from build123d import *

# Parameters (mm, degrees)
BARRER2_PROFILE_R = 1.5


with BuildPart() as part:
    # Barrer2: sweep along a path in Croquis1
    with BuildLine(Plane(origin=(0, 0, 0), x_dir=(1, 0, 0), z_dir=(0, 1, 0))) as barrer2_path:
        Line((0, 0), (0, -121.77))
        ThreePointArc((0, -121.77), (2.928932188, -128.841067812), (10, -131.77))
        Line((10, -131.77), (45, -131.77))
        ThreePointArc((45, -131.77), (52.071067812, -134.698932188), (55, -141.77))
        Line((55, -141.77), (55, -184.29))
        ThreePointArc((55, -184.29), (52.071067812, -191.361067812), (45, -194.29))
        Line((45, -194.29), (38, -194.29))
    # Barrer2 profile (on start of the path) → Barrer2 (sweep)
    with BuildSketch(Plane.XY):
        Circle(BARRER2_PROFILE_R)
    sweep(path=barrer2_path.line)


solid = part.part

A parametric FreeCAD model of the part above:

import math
import FreeCAD as App
import Part
import Sketcher
from FreeCAD import Vector
Q = App.Units.Quantity

doc = App.newDocument("Part")
body = doc.addObject("PartDesign::Body", "Body")

# Sketch on XY plane
sketch1 = body.newObject("Sketcher::SketchObject", "Sketch")
sketch1.AttachmentSupport = (doc.getObject("XY_Plane"), [""])
sketch1.MapMode = "FlatFace"
sketch1.addGeometry(Part.Circle(Vector(0, 0, 0), Vector(0, 0, 1), 1.5), False)
sketch1.addConstraint([
    Sketcher.Constraint("Coincident", 0, 3, -1, 1),
    Sketcher.Constraint("Diameter", 0, Q("3 mm")),
])

# Sketch on XZ plane
sketch2 = body.newObject("Sketcher::SketchObject", "Sketch001")
sketch2.AttachmentSupport = (doc.getObject("XZ_Plane"), [""])
sketch2.MapMode = "FlatFace"
sketch2.addGeometry([
    Part.LineSegment(Vector(0, 0, 0), Vector(0, 122, 0)),  # 0
    Part.ArcOfCircle(Part.Circle(Vector(10, 122, 0), Vector(0, 0, 1), 10), math.radians(90), math.radians(180)),  # 1
    Part.LineSegment(Vector(10, 132, 0), Vector(45, 132, 0)),  # 2
    Part.ArcOfCircle(Part.Circle(Vector(45, 142, 0), Vector(0, 0, 1), 10), math.radians(-90), math.radians(0)),  # 3
    Part.LineSegment(Vector(55, 142, 0), Vector(55, 184, 0)),  # 4
    Part.ArcOfCircle(Part.Circle(Vector(45, 184, 0), Vector(0, 0, 1), 10), math.radians(0), math.radians(90)),  # 5
    Part.LineSegment(Vector(45, 194, 0), Vector(38, 194, 0)),  # 6
], False)
sketch2.addConstraint([
    Sketcher.Constraint("Tangent", 0, 2, 1, 2),
    Sketcher.Constraint("Tangent", 1, 1, 2, 1),
    Sketcher.Constraint("Tangent", 2, 2, 3, 1),
    Sketcher.Constraint("Tangent", 3, 2, 4, 1),
    Sketcher.Constraint("Tangent", 4, 2, 5, 1),
    Sketcher.Constraint("Tangent", 5, 2, 6, 1),
    Sketcher.Constraint("Vertical", 0),
    Sketcher.Constraint("Horizontal", 2),
    Sketcher.Constraint("Vertical", 4),
    Sketcher.Constraint("Horizontal", 6),
    Sketcher.Constraint("Coincident", 0, 1, -1, 1),
    Sketcher.Constraint("Equal", 1, 3),
    Sketcher.Constraint("Equal", 3, 5),
    Sketcher.Constraint("Radius", 1, Q("10 mm")),
    Sketcher.Constraint("DistanceX", 2, 1, 2, 2, Q("35 mm")),
    Sketcher.Constraint("DistanceX", 6, 2, 6, 1, Q("7 mm")),
    Sketcher.Constraint("DistanceY", 0, 1, 0, 2, Q("121.77 mm")),
    Sketcher.Constraint("DistanceY", 4, 1, 4, 2, Q("42.52 mm")),
])
doc.recompute()

additivepipe = body.newObject("PartDesign::AdditivePipe", "AdditivePipe")
additivepipe.Profile = sketch1
additivepipe.Spine = (sketch2, ["Edge1", "Edge2", "Edge3", "Edge4", "Edge5", "Edge6", "Edge7"])

doc.recompute()
